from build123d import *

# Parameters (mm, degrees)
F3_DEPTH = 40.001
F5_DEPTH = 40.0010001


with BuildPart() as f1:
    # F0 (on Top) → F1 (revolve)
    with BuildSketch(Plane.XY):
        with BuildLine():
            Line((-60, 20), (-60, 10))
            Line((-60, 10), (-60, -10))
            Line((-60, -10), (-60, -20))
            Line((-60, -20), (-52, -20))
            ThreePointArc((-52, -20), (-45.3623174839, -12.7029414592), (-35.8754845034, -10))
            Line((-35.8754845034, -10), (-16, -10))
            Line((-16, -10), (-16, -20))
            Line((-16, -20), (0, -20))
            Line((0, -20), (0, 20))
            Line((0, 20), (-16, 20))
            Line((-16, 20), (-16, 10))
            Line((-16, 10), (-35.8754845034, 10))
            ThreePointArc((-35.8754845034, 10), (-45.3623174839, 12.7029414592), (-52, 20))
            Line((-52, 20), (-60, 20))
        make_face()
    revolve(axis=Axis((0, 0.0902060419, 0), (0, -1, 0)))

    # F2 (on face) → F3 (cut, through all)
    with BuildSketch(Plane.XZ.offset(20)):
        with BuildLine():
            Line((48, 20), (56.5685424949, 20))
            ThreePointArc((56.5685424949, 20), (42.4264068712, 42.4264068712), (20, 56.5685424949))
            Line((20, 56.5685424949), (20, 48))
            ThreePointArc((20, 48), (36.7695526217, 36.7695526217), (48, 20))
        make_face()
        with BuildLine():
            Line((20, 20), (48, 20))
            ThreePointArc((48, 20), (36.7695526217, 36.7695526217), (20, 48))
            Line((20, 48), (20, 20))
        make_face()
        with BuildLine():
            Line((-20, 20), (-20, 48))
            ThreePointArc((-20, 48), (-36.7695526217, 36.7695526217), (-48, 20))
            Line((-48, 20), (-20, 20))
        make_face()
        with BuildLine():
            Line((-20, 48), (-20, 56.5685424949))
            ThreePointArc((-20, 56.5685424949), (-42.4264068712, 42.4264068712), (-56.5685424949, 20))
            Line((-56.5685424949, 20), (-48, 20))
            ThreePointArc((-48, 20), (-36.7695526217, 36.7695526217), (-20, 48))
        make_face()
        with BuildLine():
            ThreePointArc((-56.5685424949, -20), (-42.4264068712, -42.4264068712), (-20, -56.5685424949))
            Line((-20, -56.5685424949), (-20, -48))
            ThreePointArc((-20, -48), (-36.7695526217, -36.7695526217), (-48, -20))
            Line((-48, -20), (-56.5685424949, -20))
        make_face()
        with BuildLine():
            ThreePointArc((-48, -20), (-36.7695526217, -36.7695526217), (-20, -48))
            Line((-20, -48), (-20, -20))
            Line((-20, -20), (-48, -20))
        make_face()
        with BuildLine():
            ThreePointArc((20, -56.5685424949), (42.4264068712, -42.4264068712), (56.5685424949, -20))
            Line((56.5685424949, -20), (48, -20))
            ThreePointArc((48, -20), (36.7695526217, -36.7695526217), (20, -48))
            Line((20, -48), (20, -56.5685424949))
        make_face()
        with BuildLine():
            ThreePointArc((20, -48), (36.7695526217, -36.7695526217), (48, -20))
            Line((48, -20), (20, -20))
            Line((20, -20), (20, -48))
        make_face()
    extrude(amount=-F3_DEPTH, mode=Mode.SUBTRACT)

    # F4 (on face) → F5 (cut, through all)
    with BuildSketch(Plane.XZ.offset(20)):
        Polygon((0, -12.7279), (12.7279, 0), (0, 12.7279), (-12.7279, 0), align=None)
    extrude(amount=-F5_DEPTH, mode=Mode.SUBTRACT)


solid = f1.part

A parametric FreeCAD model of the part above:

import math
import FreeCAD as App
import Part
import Sketcher
Q = App.Units.Quantity


def add_polygon(sketch, points):
    """Adds a closed chain of lines whose ends are joined by coincident constraints."""
    first, n = sketch.GeometryCount, len(points)
    for a, b in zip(points, points[1:] + points[:1]):
        sketch.addGeometry(Part.LineSegment(App.Vector(*a, 0), App.Vector(*b, 0)), False)
    for i in range(n):
        sketch.addConstraint(Sketcher.Constraint("Coincident", first + i, 2, first + (i + 1) % n, 1))

doc = App.newDocument("Part")
body = doc.addObject("PartDesign::Body", "Body")

sketch1 = doc.addObject("Sketcher::SketchObject", "Sketch")
body.addObject(sketch1)
sketch1.AttachmentSupport = (doc.XY_Plane, [""])
sketch1.MapMode = "FlatFace"
sketch1.addGeometry(Part.LineSegment(App.Vector(-60, 20, 0), App.Vector(-60, -20, 0)), False)
sketch1.addGeometry(Part.LineSegment(App.Vector(-60, -20, 0), App.Vector(-52, -20, 0)), False)
sketch1.addGeometry(Part.ArcOfCircle(Part.Circle(App.Vector(-35.875485, -28, 0), App.Vector(0, 0, 1), 18), math.radians(90), math.radians(153.6122)), False)
sketch1.addGeometry(Part.LineSegment(App.Vector(-35.875485, -10, 0), App.Vector(-16, -10, 0)), False)
sketch1.addGeometry(Part.LineSegment(App.Vector(-16, -10, 0), App.Vector(-16, -20, 0)), False)
sketch1.addGeometry(Part.LineSegment(App.Vector(-16, -20, 0), App.Vector(0, -20, 0)), False)
sketch1.addGeometry(Part.LineSegment(App.Vector(0, -20, 0), App.Vector(0, 20, 0)), False)
sketch1.addGeometry(Part.LineSegment(App.Vector(0, 20, 0), App.Vector(-16, 20, 0)), False)
sketch1.addGeometry(Part.LineSegment(App.Vector(-16, 20, 0), App.Vector(-16, 10, 0)), False)
sketch1.addGeometry(Part.LineSegment(App.Vector(-16, 10, 0), App.Vector(-35.875485, 10, 0)), False)
sketch1.addGeometry(Part.ArcOfCircle(Part.Circle(App.Vector(-35.875485, 28, 0), App.Vector(0, 0, 1), 18), math.radians(-153.6122), math.radians(-90)), False)
sketch1.addGeometry(Part.LineSegment(App.Vector(-52, 20, 0), App.Vector(-60, 20, 0)), False)
sketch1.addConstraint(Sketcher.Constraint("Coincident", 0, 2, 1, 1))
sketch1.addConstraint(Sketcher.Constraint("Coincident", 1, 2, 2, 2))
sketch1.addConstraint(Sketcher.Constraint("Tangent", 2, 1, 3, 1))
sketch1.addConstraint(Sketcher.Constraint("Coincident", 3, 2, 4, 1))
sketch1.addConstraint(Sketcher.Constraint("Coincident", 4, 2, 5, 1))
sketch1.addConstraint(Sketcher.Constraint("Coincident", 5, 2, 6, 1))
sketch1.addConstraint(Sketcher.Constraint("Coincident", 6, 2, 7, 1))
sketch1.addConstraint(Sketcher.Constraint("Coincident", 7, 2, 8, 1))
sketch1.addConstraint(Sketcher.Constraint("Coincident", 8, 2, 9, 1))
sketch1.addConstraint(Sketcher.Constraint("Tangent", 9, 2, 10, 2))
sketch1.addConstraint(Sketcher.Constraint("Coincident", 10, 1, 11, 1))
sketch1.addConstraint(Sketcher.Constraint("Coincident", 11, 2, 0, 1))
sketch1.addConstraint(Sketcher.Constraint("Vertical", 0))
sketch1.addConstraint(Sketcher.Constraint("Horizontal", 1))
sketch1.addConstraint(Sketcher.Constraint("Horizontal", 3))
sketch1.addConstraint(Sketcher.Constraint("Vertical", 4))
sketch1.addConstraint(Sketcher.Constraint("Horizontal", 5))
sketch1.addConstraint(Sketcher.Constraint("Vertical", 6))
sketch1.addConstraint(Sketcher.Constraint("Horizontal", 7))
sketch1.addConstraint(Sketcher.Constraint("Vertical", 8))
sketch1.addConstraint(Sketcher.Constraint("Horizontal", 9))
sketch1.addConstraint(Sketcher.Constraint("Horizontal", 11))
sketch1.addConstraint(Sketcher.Constraint("Equal", 2, 10))
sketch1.addConstraint(Sketcher.Constraint("Symmetric", 5, 2, 6, 2, -1, 1))
sketch1.addConstraint(Sketcher.Constraint("Symmetric", 2, 3, 10, 3, -1))
sketch1.addConstraint(Sketcher.Constraint("Horizontal", 1, 2, 4, 2))
sketch1.addConstraint(Sketcher.Constraint("Horizontal", 7, 2, 10, 1))
sketch1.addConstraint(Sketcher.Constraint("Vertical", 4, 2, 7, 2))
sketch1.addConstraint(Sketcher.Constraint("Radius", 2, Q("18 mm")))
sketch1.addConstraint(Sketcher.Constraint("DistanceX", 1, 1, 1, 2, Q("8 mm")))
sketch1.addConstraint(Sketcher.Constraint("DistanceX", 5, 1, 5, 2, Q("16 mm")))
sketch1.addConstraint(Sketcher.Constraint("DistanceY", 0, 2, 0, 1, Q("40 mm")))
sketch1.addConstraint(Sketcher.Constraint("DistanceY", 4, 2, 4, 1, Q("10 mm")))
sketch1.addConstraint(Sketcher.Constraint("DistanceX", 0, 2, -1, 1, Q("60 mm")))
revolution = doc.addObject("PartDesign::Revolution", "Revolution")
body.addObject(revolution)
revolution.Profile = sketch1
revolution.ReferenceAxis = (sketch1, ["V_Axis"])
revolution.Angle = 360

sketch2 = doc.addObject("Sketcher::SketchObject", "Sketch001")
body.addObject(sketch2)
sketch2.AttachmentSupport = (doc.XZ_Plane, [""])
sketch2.MapMode = "FlatFace"
sketch2.AttachmentOffset = App.Placement(App.Vector(0, 0, 20), App.Rotation())
sketch2.addGeometry(Part.ArcOfCircle(Part.Circle(App.Vector(0, 0, 0), App.Vector(0, 0, 1), 60), math.radians(19.471221), math.radians(70.528779)), False)
sketch2.addGeometry(Part.LineSegment(App.Vector(20, 56.568542, 0), App.Vector(20, 20, 0)), False)
sketch2.addGeometry(Part.LineSegment(App.Vector(20, 20, 0), App.Vector(56.568542, 20, 0)), False)
sketch2.addGeometry(Part.LineSegment(App.Vector(-20, 20, 0), App.Vector(-20, 56.568542, 0)), False)
sketch2.addGeometry(Part.ArcOfCircle(Part.Circle(App.Vector(0, 0, 0), App.Vector(0, 0, 1), 60), math.radians(109.471221), math.radians(160.528779)), False)
sketch2.addGeometry(Part.LineSegment(App.Vector(-56.568542, 20, 0), App.Vector(-20, 20, 0)), False)
sketch2.addGeometry(Part.ArcOfCircle(Part.Circle(App.Vector(0, 0, 0), App.Vector(0, 0, 1), 60), math.radians(-160.528779), math.radians(-109.471221)), False)
sketch2.addGeometry(Part.LineSegment(App.Vector(-20, -56.568542, 0), App.Vector(-20, -20, 0)), False)
sketch2.addGeometry(Part.LineSegment(App.Vector(-20, -20, 0), App.Vector(-56.568542, -20, 0)), False)
sketch2.addGeometry(Part.ArcOfCircle(Part.Circle(App.Vector(0, 0, 0), App.Vector(0, 0, 1), 60), math.radians(-70.528779), math.radians(-19.471221)), False)
sketch2.addGeometry(Part.LineSegment(App.Vector(56.568542, -20, 0), App.Vector(20, -20, 0)), False)
sketch2.addGeometry(Part.LineSegment(App.Vector(20, -20, 0), App.Vector(20, -56.568542, 0)), False)
sketch2.addConstraint(Sketcher.Constraint("Coincident", 0, 2, 1, 1))
sketch2.addConstraint(Sketcher.Constraint("Coincident", 1, 2, 2, 1))
sketch2.addConstraint(Sketcher.Constraint("Coincident", 2, 2, 0, 1))
sketch2.addConstraint(Sketcher.Constraint("Coincident", 3, 2, 4, 1))
sketch2.addConstraint(Sketcher.Constraint("Coincident", 4, 2, 5, 1))
sketch2.addConstraint(Sketcher.Constraint("Coincident", 5, 2, 3, 1))
sketch2.addConstraint(Sketcher.Constraint("Coincident", 6, 2, 7, 1))
sketch2.addConstraint(Sketcher.Constraint("Coincident", 7, 2, 8, 1))
sketch2.addConstraint(Sketcher.Constraint("Coincident", 8, 2, 6, 1))
sketch2.addConstraint(Sketcher.Constraint("Coincident", 9, 2, 10, 1))
sketch2.addConstraint(Sketcher.Constraint("Coincident", 10, 2, 11, 1))
sketch2.addConstraint(Sketcher.Constraint("Coincident", 11, 2, 9, 1))
sketch2.addConstraint(Sketcher.Constraint("Vertical", 1))
sketch2.addConstraint(Sketcher.Constraint("Horizontal", 2))
sketch2.addConstraint(Sketcher.Constraint("Vertical", 3))
sketch2.addConstraint(Sketcher.Constraint("Horizontal", 5))
sketch2.addConstraint(Sketcher.Constraint("Vertical", 7))
sketch2.addConstraint(Sketcher.Constraint("Horizontal", 8))
sketch2.addConstraint(Sketcher.Constraint("Horizontal", 10))
sketch2.addConstraint(Sketcher.Constraint("Vertical", 11))
sketch2.addConstraint(Sketcher.Constraint("Coincident", 0, 3, -1, 1))
sketch2.addConstraint(Sketcher.Constraint("Coincident", 4, 3, -1, 1))
sketch2.addConstraint(Sketcher.Constraint("Coincident", 6, 3, -1, 1))
sketch2.addConstraint(Sketcher.Constraint("Coincident", 9, 3, -1, 1))
sketch2.addConstraint(Sketcher.Constraint("Equal", 0, 4))
sketch2.addConstraint(Sketcher.Constraint("Equal", 4, 6))
sketch2.addConstraint(Sketcher.Constraint("Equal", 6, 9))
sketch2.addConstraint(Sketcher.Constraint("Symmetric", 1, 2, 7, 2, -1, 1))
sketch2.addConstraint(Sketcher.Constraint("Symmetric", 5, 2, 10, 2, -1, 1))
sketch2.addConstraint(Sketcher.Constraint("Symmetric", 1, 2, 5, 2, -2))
sketch2.addConstraint(Sketcher.Constraint("Equal", 10, 1))
sketch2.addConstraint(Sketcher.Constraint("Radius", 0, Q("60 mm")))
sketch2.addConstraint(Sketcher.Constraint("DistanceX", -1, 1, 0, 2, Q("20 mm")))
pocket1 = doc.addObject("PartDesign::Pocket", "Pocket")
body.addObject(pocket1)
pocket1.Profile = sketch2
pocket1.Type = "ThroughAll"

sketch3 = doc.addObject("Sketcher::SketchObject", "Sketch002")
body.addObject(sketch3)
sketch3.AttachmentSupport = (doc.XZ_Plane, [""])
sketch3.MapMode = "FlatFace"
sketch3.AttachmentOffset = App.Placement(App.Vector(0, 0, 20), App.Rotation())
add_polygon(sketch3, [(0, -12.7279), (12.7279, 0), (0, 12.7279), (-12.7279, 0)])
sketch3.addConstraint(Sketcher.Constraint("Symmetric", 0, 2, 2, 2, -1, 1))
sketch3.addConstraint(Sketcher.Constraint("Symmetric", 1, 2, 3, 2, -1, 1))
sketch3.addConstraint(Sketcher.Constraint("PointOnObject", 0, 2, -1))
sketch3.addConstraint(Sketcher.Constraint("PointOnObject", 1, 2, -2))
sketch3.addConstraint(Sketcher.Constraint("Perpendicular", 0, 1))
sketch3.addConstraint(Sketcher.Constraint("DistanceX", -1, 1, 0, 2, Q("12.7279 mm")))
pocket2 = doc.addObject("PartDesign::Pocket", "Pocket001")
body.addObject(pocket2)
pocket2.Profile = sketch3
pocket2.Type = "ThroughAll"

doc.recompute()
